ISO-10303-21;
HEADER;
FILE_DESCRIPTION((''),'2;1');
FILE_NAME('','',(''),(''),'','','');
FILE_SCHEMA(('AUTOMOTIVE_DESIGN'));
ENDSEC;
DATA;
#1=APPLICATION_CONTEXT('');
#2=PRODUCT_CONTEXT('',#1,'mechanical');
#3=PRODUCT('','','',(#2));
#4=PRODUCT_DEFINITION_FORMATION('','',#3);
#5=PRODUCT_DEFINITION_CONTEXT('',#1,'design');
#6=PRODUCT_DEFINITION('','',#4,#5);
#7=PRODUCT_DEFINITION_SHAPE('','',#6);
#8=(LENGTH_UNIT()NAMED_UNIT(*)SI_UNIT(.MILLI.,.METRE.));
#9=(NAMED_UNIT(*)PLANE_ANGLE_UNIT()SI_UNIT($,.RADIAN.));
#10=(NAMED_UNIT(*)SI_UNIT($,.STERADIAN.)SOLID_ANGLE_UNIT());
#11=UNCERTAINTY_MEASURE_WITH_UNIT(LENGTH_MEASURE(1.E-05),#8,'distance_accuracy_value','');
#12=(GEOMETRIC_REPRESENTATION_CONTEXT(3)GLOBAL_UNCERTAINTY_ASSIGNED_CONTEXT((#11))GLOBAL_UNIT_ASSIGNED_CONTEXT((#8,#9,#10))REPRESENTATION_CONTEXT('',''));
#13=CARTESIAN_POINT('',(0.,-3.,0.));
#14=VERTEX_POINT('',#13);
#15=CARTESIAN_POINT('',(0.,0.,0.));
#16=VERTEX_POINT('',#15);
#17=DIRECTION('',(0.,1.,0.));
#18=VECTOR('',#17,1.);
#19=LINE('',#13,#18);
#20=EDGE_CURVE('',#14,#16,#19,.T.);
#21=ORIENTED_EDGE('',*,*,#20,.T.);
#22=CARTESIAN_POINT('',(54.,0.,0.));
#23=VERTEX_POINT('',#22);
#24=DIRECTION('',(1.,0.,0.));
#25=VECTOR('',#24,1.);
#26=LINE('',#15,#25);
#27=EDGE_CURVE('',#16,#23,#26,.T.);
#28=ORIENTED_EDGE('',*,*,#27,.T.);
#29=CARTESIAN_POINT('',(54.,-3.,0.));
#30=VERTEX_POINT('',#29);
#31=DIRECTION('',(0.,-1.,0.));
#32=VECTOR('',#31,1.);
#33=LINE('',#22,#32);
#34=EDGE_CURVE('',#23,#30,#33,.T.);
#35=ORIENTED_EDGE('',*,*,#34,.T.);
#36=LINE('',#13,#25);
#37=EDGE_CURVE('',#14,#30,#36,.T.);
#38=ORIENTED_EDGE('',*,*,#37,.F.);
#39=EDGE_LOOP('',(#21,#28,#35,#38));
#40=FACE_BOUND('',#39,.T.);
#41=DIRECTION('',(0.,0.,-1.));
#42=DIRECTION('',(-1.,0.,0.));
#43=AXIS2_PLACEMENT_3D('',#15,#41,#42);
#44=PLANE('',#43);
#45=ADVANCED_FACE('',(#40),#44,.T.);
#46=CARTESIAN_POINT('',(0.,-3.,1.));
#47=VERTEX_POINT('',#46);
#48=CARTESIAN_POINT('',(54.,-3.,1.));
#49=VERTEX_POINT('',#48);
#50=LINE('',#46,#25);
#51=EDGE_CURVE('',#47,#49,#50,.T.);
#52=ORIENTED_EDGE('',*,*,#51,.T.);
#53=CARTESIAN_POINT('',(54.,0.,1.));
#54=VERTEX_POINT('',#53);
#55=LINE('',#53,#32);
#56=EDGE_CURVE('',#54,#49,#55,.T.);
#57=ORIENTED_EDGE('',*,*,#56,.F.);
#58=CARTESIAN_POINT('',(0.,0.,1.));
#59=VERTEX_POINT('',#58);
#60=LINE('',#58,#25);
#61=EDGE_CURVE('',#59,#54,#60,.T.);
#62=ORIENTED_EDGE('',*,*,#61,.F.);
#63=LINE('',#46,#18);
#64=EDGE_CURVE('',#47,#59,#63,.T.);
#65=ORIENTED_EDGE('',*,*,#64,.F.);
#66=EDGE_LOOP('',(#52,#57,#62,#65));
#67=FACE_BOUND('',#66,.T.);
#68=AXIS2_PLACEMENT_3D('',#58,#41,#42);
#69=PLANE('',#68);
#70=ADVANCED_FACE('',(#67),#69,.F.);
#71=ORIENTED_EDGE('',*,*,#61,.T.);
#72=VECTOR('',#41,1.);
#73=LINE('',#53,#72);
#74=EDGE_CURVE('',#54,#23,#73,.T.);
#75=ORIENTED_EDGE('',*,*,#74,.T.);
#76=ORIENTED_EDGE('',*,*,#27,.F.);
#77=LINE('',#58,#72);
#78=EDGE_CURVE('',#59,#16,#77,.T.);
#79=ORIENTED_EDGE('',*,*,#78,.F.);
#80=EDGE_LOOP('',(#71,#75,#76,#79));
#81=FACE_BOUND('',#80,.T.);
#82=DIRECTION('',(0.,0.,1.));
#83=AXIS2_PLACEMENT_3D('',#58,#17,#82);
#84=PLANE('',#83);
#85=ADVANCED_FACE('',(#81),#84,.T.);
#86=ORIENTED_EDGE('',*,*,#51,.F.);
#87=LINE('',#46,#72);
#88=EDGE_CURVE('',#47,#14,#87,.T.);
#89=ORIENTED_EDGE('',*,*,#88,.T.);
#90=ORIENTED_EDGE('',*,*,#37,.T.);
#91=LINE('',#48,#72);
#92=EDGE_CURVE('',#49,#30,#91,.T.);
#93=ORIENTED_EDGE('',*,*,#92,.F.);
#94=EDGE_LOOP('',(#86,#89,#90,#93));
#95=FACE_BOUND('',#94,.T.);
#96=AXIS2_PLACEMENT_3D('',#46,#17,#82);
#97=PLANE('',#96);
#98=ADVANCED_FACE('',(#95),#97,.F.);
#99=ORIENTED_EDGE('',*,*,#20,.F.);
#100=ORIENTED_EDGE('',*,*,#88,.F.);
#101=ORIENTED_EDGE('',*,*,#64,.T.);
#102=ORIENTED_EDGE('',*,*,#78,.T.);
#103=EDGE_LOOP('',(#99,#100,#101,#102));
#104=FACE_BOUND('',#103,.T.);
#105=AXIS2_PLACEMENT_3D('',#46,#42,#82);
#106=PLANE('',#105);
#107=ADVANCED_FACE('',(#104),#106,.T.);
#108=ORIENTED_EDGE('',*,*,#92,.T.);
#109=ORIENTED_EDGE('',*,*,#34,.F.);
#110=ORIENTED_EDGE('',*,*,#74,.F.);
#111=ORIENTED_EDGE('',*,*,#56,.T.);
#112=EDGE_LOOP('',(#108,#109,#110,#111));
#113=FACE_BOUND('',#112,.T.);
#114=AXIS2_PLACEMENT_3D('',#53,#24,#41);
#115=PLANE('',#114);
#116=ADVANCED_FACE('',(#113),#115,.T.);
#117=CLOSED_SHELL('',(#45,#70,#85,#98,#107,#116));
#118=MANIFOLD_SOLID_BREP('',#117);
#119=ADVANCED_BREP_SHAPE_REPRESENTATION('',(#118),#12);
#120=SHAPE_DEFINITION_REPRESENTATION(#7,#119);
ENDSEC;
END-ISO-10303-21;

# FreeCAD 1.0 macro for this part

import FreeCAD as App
import Part
import Sketcher
from FreeCAD import Vector
Q = App.Units.Quantity


def add_polygon(sketch, points):
    """Adds a closed chain of lines whose ends are joined by coincident constraints."""
    first, n = sketch.GeometryCount, len(points)
    for a, b in zip(points, points[1:] + points[:1]):
        sketch.addGeometry(Part.LineSegment(App.Vector(*a, 0), App.Vector(*b, 0)), False)
    for i in range(n):
        sketch.addConstraint(Sketcher.Constraint("Coincident", first + i, 2, first + (i + 1) % n, 1))

doc = App.newDocument("Part")
body = doc.addObject("PartDesign::Body", "Body")

sketch1 = body.newObject("Sketcher::SketchObject", "Sketch")
sketch1.AttachmentSupport = (doc.getObject("XY_Plane"), [""])
sketch1.MapMode = "FlatFace"
add_polygon(sketch1, [(0, 0), (0, -3), (54, -3), (54, 0)])
sketch1.addConstraint(Sketcher.Constraint("Vertical", 0))
sketch1.addConstraint(Sketcher.Constraint("Horizontal", 1))
sketch1.addConstraint(Sketcher.Constraint("Vertical", 2))
sketch1.addConstraint(Sketcher.Constraint("Horizontal", 3))
sketch1.addConstraint(Sketcher.Constraint("Coincident", 3, 2, -1, 1))
sketch1.addConstraint(Sketcher.Constraint("DistanceX", 1, 1, 1, 2, Q("54 mm")))
sketch1.addConstraint(Sketcher.Constraint("DistanceY", 0, 2, 0, 1, Q("3 mm")))
pad1 = body.newObject("PartDesign::Pad", "Pad")
pad1.Profile = sketch1
pad1.Length = 1

doc.recompute()
